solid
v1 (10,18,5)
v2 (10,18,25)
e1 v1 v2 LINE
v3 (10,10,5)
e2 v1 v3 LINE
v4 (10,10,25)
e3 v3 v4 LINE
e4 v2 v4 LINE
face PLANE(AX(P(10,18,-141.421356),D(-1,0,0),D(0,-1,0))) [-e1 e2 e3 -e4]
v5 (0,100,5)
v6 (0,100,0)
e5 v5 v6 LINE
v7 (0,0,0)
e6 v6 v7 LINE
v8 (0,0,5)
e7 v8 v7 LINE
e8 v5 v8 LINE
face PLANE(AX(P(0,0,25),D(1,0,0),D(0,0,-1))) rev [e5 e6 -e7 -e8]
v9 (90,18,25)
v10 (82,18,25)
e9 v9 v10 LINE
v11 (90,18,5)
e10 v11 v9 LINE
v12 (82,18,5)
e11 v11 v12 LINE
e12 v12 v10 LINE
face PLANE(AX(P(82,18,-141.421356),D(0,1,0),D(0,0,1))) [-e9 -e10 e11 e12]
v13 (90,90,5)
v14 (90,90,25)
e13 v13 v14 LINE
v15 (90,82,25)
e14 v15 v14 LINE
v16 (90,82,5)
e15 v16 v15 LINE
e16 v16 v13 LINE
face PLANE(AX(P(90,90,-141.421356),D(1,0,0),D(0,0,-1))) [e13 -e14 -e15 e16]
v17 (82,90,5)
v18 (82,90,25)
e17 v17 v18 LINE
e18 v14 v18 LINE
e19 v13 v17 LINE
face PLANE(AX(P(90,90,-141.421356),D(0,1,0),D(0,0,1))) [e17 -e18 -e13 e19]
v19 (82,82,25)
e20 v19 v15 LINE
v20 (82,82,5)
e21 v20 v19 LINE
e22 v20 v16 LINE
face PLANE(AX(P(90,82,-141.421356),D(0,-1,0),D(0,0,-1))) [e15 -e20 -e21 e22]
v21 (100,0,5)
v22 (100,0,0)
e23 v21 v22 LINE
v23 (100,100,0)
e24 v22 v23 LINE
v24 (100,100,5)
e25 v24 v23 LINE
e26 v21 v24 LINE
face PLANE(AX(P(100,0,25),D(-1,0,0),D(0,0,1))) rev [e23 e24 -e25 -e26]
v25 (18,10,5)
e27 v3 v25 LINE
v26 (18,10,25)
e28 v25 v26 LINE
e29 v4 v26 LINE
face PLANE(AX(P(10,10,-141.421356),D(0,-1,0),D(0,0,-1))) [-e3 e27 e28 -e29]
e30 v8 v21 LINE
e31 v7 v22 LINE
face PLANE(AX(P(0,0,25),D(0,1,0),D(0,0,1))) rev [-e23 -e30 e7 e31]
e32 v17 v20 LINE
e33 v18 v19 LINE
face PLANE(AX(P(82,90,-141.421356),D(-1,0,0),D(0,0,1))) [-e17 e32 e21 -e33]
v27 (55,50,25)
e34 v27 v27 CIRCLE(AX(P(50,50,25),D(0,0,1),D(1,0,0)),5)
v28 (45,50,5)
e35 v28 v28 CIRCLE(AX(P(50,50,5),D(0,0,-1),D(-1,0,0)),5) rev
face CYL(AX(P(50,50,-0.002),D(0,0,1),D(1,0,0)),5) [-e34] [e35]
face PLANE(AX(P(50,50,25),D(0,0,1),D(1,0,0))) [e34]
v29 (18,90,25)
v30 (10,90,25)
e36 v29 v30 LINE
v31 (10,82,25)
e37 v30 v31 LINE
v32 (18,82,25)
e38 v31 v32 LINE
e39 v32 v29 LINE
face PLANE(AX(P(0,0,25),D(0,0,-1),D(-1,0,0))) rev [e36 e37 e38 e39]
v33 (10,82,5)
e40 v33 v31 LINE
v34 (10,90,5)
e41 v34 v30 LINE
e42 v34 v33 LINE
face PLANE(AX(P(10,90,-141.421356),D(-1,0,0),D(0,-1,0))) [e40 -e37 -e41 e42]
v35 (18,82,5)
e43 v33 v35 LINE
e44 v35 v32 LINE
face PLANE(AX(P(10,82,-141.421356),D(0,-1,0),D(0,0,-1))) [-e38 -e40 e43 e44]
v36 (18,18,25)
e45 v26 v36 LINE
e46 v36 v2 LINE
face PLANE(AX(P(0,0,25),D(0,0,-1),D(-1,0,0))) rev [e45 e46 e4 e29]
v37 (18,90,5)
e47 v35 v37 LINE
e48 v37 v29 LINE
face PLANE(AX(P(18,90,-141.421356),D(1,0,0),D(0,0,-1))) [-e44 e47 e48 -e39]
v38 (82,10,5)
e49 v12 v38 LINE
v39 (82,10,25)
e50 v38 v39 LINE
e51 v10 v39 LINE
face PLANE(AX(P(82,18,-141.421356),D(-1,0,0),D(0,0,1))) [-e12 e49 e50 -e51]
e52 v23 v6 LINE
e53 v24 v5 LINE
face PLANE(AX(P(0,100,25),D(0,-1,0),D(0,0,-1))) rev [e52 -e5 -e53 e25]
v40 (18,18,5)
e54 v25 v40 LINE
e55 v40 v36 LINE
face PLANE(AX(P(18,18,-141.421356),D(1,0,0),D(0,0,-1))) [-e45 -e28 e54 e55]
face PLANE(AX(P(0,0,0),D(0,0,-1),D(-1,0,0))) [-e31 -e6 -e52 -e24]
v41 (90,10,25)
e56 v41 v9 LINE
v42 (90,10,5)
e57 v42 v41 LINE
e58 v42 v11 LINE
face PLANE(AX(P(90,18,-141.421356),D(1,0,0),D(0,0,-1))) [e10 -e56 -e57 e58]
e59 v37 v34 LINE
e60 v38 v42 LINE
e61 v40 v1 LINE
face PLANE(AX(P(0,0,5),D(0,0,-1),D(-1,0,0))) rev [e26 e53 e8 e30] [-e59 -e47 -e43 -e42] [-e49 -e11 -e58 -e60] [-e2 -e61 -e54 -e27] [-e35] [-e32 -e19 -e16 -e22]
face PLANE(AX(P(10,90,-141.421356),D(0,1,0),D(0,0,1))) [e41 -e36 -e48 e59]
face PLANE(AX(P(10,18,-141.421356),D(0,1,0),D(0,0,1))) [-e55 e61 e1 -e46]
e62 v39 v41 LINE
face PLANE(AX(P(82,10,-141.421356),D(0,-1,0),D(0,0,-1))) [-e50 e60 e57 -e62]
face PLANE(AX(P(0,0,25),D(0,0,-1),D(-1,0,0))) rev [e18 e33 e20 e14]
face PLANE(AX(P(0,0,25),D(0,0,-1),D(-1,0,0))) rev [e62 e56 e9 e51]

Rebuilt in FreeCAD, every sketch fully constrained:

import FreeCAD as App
import Part
import Sketcher
from FreeCAD import Vector
Q = App.Units.Quantity


def add_polygon(sketch, points):
    """Adds a closed chain of lines whose ends are joined by coincident constraints."""
    first, n = sketch.GeometryCount, len(points)
    for a, b in zip(points, points[1:] + points[:1]):
        sketch.addGeometry(Part.LineSegment(App.Vector(*a, 0), App.Vector(*b, 0)), False)
    for i in range(n):
        sketch.addConstraint(Sketcher.Constraint("Coincident", first + i, 2, first + (i + 1) % n, 1))

doc = App.newDocument("Part")
params = doc.addObject("Spreadsheet::Sheet", "Params")
for row, (alias, value) in enumerate([
    ("sketch1_width", "100 mm"),
    ("pad1_length", "25 mm"),
    ("sketch2_width", "100 mm"),
    ("sketch2_width2", "8 mm"),
    ("pocket1_length", "20 mm"),
    ("sketch3_diameter", "10 mm"),
], start=1):
    params.set(f"A{row}", alias)
    params.set(f"B{row}", "=" + value)
    params.setAlias(f"B{row}", alias)

body = doc.addObject("PartDesign::Body", "Body")

sketch1 = body.newObject("Sketcher::SketchObject", "Sketch")
sketch1.AttachmentSupport = (doc.getObject("XY_Plane"), [""])
sketch1.MapMode = "FlatFace"
add_polygon(sketch1, [(0, 100), (0, 0), (100, 0), (100, 100)])
sketch1.addConstraint(Sketcher.Constraint("Vertical", 0))
sketch1.addConstraint(Sketcher.Constraint("Horizontal", 1))
sketch1.addConstraint(Sketcher.Constraint("Vertical", 2))
sketch1.addConstraint(Sketcher.Constraint("Horizontal", 3))
sketch1.addConstraint(Sketcher.Constraint("Coincident", 0, 2, -1, 1))
sketch1.addConstraint(Sketcher.Constraint("Equal", 3, 0))
sketch1.addConstraint(Sketcher.Constraint("DistanceX", 1, 1, 1, 2, Q("100 mm")))
sketch1.setExpression("Constraints[10]", "Params.sketch1_width")
pad1 = body.newObject("PartDesign::Pad", "Pad")
pad1.Profile = sketch1
pad1.setExpression("Length", "Params.pad1_length")

sketch2 = body.newObject("Sketcher::SketchObject", "Sketch001")
sketch2.AttachmentSupport = (doc.getObject("XY_Plane"), [""])
sketch2.MapMode = "FlatFace"
sketch2.AttachmentOffset = App.Placement(Vector(0, 0, 25), App.Rotation())
add_polygon(sketch2, [(0, 100), (0, 0), (100, 0), (100, 100)])
add_polygon(sketch2, [(18, 10), (10, 10), (10, 18), (18, 18)])
add_polygon(sketch2, [(90, 10), (82, 10), (82, 18), (90, 18)])
add_polygon(sketch2, [(18, 82), (10, 82), (10, 90), (18, 90)])
add_polygon(sketch2, [(90, 82), (82, 82), (82, 90), (90, 90)])
sketch2.addConstraint(Sketcher.Constraint("Vertical", 0))
sketch2.addConstraint(Sketcher.Constraint("Horizontal", 1))
sketch2.addConstraint(Sketcher.Constraint("Vertical", 2))
sketch2.addConstraint(Sketcher.Constraint("Horizontal", 3))
sketch2.addConstraint(Sketcher.Constraint("Horizontal", 4))
sketch2.addConstraint(Sketcher.Constraint("Vertical", 5))
sketch2.addConstraint(Sketcher.Constraint("Horizontal", 6))
sketch2.addConstraint(Sketcher.Constraint("Vertical", 7))
sketch2.addConstraint(Sketcher.Constraint("Horizontal", 8))
sketch2.addConstraint(Sketcher.Constraint("Vertical", 9))
sketch2.addConstraint(Sketcher.Constraint("Horizontal", 10))
sketch2.addConstraint(Sketcher.Constraint("Vertical", 11))
sketch2.addConstraint(Sketcher.Constraint("Horizontal", 12))
sketch2.addConstraint(Sketcher.Constraint("Vertical", 13))
sketch2.addConstraint(Sketcher.Constraint("Horizontal", 14))
sketch2.addConstraint(Sketcher.Constraint("Vertical", 15))
sketch2.addConstraint(Sketcher.Constraint("Horizontal", 16))
sketch2.addConstraint(Sketcher.Constraint("Vertical", 17))
sketch2.addConstraint(Sketcher.Constraint("Horizontal", 18))
sketch2.addConstraint(Sketcher.Constraint("Vertical", 19))
sketch2.addConstraint(Sketcher.Constraint("Coincident", 0, 2, -1, 1))
sketch2.addConstraint(Sketcher.Constraint("Horizontal", 7, 2, 8, 2))
sketch2.addConstraint(Sketcher.Constraint("Horizontal", 6, 2, 9, 2))
sketch2.addConstraint(Sketcher.Constraint("Horizontal", 15, 2, 16, 2))
sketch2.addConstraint(Sketcher.Constraint("Horizontal", 14, 2, 17, 2))
sketch2.addConstraint(Sketcher.Constraint("Vertical", 5, 2, 12, 2))
sketch2.addConstraint(Sketcher.Constraint("Vertical", 7, 2, 14, 2))
sketch2.addConstraint(Sketcher.Constraint("Vertical", 9, 2, 16, 2))
sketch2.addConstraint(Sketcher.Constraint("Vertical", 11, 2, 18, 2))
sketch2.addConstraint(Sketcher.Constraint("Equal", 6, 8))
sketch2.addConstraint(Sketcher.Constraint("Equal", 3, 0))
sketch2.addConstraint(Sketcher.Constraint("Equal", 18, 5))
sketch2.addConstraint(Sketcher.Constraint("Equal", 11, 13))
sketch2.addConstraint(Sketcher.Constraint("DistanceX", 1, 1, 1, 2, Q("100 mm")))
sketch2.addConstraint(Sketcher.Constraint("DistanceX", 4, 2, 4, 1, Q("8 mm")))
sketch2.addConstraint(Sketcher.Constraint("DistanceX", -1, 1, 4, 2, Q("10 mm")))
sketch2.addConstraint(Sketcher.Constraint("DistanceY", -1, 1, 4, 2, Q("10 mm")))
sketch2.addConstraint(Sketcher.Constraint("DistanceX", -1, 1, 8, 2, Q("82 mm")))
sketch2.addConstraint(Sketcher.Constraint("DistanceY", -1, 1, 12, 2, Q("82 mm")))
sketch2.setExpression("Constraints[53]", "Params.sketch2_width")
sketch2.setExpression("Constraints[54]", "Params.sketch2_width2")
pocket1 = body.newObject("PartDesign::Pocket", "Pocket")
pocket1.Profile = sketch2
pocket1.setExpression("Length", "Params.pocket1_length")

sketch3 = body.newObject("Sketcher::SketchObject", "Sketch002")
sketch3.AttachmentSupport = (doc.getObject("XY_Plane"), [""])
sketch3.MapMode = "FlatFace"
sketch3.AttachmentOffset = App.Placement(Vector(0, 0, 25), App.Rotation())
sketch3.addGeometry(Part.Circle(Vector(50, 50, 0), Vector(0, 0, 1), 5), False)
sketch3.addConstraint(Sketcher.Constraint("Diameter", 0, Q("10 mm")))
sketch3.addConstraint(Sketcher.Constraint("DistanceX", -1, 1, 0, 3, Q("50 mm")))
sketch3.addConstraint(Sketcher.Constraint("DistanceY", -1, 1, 0, 3, Q("50 mm")))
sketch3.setExpression("Constraints[0]", "Params.sketch3_diameter")
pad2 = body.newObject("PartDesign::Pad", "Pad001")
pad2.Profile = sketch3
pad2.Type = "UpToFirst"
pad2.Reversed = True

doc.recompute()
